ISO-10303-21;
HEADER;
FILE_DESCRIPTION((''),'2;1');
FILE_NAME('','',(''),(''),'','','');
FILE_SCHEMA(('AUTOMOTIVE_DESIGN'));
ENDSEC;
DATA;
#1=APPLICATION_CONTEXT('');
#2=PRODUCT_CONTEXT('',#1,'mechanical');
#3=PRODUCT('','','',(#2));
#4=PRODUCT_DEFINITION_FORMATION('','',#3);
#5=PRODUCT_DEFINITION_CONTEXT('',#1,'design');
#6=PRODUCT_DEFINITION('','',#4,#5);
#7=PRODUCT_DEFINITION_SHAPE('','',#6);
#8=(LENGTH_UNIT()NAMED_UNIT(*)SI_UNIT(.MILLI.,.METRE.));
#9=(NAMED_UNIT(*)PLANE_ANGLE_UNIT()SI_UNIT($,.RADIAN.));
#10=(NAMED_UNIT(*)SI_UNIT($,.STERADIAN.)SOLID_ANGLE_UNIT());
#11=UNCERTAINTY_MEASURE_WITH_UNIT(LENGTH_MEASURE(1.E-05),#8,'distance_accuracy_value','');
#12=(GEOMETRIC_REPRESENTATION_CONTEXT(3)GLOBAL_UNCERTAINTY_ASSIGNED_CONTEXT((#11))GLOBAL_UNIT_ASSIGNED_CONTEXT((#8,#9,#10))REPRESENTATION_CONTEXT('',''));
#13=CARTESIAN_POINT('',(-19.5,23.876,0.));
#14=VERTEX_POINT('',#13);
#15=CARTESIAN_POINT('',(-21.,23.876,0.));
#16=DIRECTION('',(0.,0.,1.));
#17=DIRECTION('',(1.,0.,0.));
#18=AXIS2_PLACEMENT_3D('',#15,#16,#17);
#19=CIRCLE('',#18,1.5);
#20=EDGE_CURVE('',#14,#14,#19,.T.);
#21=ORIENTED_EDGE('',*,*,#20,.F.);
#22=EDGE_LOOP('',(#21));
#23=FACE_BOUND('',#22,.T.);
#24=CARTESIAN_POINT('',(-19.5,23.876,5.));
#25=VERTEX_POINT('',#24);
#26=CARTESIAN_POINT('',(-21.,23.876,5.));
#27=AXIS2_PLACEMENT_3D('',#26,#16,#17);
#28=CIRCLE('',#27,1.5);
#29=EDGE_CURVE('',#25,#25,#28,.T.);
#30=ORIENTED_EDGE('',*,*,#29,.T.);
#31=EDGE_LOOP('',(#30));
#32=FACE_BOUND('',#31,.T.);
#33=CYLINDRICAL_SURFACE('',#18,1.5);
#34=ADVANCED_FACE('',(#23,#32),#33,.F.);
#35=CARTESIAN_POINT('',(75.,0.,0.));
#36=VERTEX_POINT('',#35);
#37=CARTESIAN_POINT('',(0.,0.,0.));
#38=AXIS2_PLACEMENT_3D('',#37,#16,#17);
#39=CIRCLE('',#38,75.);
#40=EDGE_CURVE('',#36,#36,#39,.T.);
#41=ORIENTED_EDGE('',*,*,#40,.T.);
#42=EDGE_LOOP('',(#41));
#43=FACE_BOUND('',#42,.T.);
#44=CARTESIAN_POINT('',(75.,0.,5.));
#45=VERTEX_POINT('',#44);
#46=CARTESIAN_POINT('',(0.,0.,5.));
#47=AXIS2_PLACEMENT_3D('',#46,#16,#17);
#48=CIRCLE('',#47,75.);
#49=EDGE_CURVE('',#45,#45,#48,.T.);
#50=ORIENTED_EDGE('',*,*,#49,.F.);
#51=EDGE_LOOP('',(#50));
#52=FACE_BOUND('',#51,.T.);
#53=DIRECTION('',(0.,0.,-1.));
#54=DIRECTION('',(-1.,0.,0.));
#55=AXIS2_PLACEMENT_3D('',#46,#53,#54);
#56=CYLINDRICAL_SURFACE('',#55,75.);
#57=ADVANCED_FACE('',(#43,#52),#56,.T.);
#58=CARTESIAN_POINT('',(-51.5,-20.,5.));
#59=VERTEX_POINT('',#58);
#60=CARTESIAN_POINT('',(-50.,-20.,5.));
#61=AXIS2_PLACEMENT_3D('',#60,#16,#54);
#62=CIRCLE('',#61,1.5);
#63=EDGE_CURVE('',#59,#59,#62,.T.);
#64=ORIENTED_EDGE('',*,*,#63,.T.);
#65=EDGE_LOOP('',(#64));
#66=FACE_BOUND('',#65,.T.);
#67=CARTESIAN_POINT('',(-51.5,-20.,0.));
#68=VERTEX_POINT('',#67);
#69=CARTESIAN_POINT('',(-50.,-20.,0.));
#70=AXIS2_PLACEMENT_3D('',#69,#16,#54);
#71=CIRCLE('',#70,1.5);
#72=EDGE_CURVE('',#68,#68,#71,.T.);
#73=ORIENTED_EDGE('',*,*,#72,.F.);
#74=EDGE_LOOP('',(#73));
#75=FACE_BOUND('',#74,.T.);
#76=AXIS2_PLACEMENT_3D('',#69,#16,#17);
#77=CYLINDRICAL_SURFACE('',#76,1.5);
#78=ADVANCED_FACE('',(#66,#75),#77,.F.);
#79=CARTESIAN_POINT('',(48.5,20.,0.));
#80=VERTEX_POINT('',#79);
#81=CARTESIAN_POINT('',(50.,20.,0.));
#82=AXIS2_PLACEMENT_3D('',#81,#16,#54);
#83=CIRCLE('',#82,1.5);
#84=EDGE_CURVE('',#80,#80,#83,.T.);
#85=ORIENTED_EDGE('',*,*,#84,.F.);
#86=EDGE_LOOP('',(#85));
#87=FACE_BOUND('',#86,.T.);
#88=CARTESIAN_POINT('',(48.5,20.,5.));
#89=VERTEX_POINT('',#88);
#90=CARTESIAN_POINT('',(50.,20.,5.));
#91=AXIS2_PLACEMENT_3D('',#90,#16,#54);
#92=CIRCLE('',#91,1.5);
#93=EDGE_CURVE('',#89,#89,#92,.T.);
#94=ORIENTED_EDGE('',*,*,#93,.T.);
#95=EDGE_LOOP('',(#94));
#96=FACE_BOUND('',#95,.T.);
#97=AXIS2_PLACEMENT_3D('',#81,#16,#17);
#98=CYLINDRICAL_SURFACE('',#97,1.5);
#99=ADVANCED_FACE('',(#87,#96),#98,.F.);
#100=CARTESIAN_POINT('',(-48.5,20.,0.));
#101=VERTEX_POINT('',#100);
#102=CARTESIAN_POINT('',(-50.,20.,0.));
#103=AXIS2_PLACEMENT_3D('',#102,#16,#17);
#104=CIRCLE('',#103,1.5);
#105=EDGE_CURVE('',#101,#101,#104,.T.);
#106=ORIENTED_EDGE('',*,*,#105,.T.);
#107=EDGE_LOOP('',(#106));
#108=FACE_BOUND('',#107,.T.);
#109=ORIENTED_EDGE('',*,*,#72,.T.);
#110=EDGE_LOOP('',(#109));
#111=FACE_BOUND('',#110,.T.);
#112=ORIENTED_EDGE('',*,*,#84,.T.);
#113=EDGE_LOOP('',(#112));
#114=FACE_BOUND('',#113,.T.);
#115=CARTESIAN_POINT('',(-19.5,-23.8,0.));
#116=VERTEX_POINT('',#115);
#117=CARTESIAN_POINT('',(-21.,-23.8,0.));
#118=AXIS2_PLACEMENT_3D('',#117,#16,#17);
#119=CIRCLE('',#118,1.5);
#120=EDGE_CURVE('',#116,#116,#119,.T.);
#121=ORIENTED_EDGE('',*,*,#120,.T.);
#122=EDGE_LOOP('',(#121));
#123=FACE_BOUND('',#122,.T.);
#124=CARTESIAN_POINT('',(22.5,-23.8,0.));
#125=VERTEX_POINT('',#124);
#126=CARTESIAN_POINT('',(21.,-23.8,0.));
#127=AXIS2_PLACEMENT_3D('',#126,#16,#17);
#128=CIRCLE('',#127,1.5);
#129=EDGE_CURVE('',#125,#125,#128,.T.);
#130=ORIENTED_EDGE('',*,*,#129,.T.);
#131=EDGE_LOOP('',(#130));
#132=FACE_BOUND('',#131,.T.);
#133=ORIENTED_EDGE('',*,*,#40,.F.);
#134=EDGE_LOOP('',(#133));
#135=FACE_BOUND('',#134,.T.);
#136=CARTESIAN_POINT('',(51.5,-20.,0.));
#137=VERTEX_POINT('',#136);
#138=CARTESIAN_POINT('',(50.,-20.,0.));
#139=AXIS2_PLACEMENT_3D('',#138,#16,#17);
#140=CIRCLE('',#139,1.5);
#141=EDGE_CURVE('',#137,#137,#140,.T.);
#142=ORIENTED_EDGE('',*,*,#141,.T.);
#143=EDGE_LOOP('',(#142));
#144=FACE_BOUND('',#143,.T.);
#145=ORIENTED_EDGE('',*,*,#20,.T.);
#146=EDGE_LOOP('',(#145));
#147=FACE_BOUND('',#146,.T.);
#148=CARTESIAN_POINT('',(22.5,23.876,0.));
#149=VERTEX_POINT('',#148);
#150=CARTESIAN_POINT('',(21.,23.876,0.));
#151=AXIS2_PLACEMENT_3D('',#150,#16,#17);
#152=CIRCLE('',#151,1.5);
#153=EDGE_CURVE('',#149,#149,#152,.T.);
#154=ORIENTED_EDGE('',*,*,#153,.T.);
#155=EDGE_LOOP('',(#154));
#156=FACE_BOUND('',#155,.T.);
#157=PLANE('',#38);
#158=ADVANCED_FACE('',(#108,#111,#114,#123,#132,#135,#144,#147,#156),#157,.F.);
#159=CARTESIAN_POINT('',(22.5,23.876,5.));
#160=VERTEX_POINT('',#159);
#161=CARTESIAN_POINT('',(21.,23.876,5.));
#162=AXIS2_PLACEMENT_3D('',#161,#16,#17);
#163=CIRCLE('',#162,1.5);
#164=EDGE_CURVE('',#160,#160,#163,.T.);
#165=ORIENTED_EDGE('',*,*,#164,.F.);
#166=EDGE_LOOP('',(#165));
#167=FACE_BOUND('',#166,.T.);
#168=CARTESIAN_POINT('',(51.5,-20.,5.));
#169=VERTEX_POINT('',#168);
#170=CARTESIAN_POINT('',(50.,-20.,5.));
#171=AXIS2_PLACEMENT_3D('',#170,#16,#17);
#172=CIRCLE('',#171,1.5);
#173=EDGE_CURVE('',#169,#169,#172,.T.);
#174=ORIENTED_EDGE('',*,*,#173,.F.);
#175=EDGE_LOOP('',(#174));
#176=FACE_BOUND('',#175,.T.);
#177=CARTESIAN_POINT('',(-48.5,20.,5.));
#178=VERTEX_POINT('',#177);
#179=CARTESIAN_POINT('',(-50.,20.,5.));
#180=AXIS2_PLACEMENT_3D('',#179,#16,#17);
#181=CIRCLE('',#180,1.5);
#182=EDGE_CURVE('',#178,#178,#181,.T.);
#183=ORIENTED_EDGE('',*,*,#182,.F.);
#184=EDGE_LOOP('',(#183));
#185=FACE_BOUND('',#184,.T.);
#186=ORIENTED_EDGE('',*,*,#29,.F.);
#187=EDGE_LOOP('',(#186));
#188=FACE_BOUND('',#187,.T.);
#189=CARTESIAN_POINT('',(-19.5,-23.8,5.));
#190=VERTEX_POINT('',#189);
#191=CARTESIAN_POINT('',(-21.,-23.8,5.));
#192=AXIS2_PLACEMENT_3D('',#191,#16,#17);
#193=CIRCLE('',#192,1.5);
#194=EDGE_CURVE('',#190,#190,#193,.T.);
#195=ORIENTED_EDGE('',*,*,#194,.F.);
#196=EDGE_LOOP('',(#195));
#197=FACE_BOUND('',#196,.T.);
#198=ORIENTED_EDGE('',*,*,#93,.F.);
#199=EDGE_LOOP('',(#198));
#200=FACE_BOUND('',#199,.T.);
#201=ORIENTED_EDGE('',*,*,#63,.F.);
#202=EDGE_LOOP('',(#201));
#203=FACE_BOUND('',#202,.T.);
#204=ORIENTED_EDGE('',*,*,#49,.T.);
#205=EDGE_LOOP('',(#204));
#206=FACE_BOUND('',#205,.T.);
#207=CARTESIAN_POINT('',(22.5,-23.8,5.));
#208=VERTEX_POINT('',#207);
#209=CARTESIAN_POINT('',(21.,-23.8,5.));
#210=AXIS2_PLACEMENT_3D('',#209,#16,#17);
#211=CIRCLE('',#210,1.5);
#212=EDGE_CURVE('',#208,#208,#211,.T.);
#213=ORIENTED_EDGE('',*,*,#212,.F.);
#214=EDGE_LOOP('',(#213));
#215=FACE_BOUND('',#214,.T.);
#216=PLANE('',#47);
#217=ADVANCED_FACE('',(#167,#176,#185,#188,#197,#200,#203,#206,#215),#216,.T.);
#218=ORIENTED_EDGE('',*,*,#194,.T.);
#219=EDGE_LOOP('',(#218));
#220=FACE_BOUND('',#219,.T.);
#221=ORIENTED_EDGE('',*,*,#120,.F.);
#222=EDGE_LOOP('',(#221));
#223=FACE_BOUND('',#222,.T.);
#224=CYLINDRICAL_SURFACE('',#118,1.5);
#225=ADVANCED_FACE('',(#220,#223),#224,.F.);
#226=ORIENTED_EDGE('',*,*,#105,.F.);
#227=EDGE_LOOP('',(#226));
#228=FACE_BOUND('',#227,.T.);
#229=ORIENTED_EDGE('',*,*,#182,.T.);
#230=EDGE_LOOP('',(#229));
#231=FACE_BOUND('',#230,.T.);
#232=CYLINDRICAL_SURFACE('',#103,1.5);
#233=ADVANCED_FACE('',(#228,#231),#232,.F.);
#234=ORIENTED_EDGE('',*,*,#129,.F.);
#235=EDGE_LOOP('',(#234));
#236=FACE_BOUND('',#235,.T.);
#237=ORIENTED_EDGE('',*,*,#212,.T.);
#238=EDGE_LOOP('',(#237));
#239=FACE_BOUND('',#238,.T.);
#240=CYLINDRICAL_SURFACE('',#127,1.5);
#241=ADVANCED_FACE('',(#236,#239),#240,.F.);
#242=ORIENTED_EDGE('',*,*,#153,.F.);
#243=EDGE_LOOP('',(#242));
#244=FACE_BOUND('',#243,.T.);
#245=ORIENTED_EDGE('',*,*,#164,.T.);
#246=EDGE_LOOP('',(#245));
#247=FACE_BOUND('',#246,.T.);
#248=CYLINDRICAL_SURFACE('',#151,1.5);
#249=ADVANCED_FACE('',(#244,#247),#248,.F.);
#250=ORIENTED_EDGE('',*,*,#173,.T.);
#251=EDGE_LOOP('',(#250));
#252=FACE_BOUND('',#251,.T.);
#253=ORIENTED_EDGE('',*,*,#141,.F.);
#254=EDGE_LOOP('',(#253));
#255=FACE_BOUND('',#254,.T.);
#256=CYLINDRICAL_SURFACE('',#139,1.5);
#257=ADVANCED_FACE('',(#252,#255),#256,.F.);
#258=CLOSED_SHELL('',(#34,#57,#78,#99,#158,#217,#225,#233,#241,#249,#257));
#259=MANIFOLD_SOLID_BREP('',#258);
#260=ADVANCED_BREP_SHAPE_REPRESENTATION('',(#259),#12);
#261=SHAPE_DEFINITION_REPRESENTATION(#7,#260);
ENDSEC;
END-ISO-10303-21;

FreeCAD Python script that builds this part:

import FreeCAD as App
import Part
import Sketcher

doc = App.newDocument("Part")
body = doc.addObject("PartDesign::Body", "Body")

# Sketch on XY plane
sketch1 = doc.addObject("Sketcher::SketchObject", "Sketch")
body.addObject(sketch1)
sketch1.AttachmentSupport = (doc.XY_Plane, [""])
sketch1.MapMode = "FlatFace"
sketch1.addGeometry(Part.Circle(App.Vector(0, 0, 0), App.Vector(0, 0, 1), 75), False)
sketch1.addConstraint(Sketcher.Constraint("Coincident", 0, 3, -1, 1))
sketch1.addConstraint(Sketcher.Constraint("Diameter", 0, 150.0))
pad1 = doc.addObject("PartDesign::Pad", "Pad")
body.addObject(pad1)
pad1.Profile = sketch1
pad1.Length = 5

# Sketch on XY plane
sketch2 = doc.addObject("Sketcher::SketchObject", "Sketch001")
body.addObject(sketch2)
sketch2.AttachmentSupport = (doc.XY_Plane, [""])
sketch2.MapMode = "FlatFace"
sketch2.AttachmentOffset = App.Placement(App.Vector(0, 0, 5), App.Rotation())
sketch2.addGeometry(Part.Circle(App.Vector(-50, 20, 0), App.Vector(0, 0, 1), 1.5), False)
sketch2.addGeometry(Part.Circle(App.Vector(-50, -20, 0), App.Vector(0, 0, 1), 1.5), False)
sketch2.addGeometry(Part.Circle(App.Vector(50, -20, 0), App.Vector(0, 0, 1), 1.5), False)
sketch2.addGeometry(Part.Circle(App.Vector(50, 20, 0), App.Vector(0, 0, 1), 1.5), False)
sketch2.addGeometry(Part.Circle(App.Vector(21, 23.9, 0), App.Vector(0, 0, 1), 1.5), False)
sketch2.addGeometry(Part.Circle(App.Vector(-21, 23.9, 0), App.Vector(0, 0, 1), 1.5), False)
sketch2.addGeometry(Part.Circle(App.Vector(-21, -23.8, 0), App.Vector(0, 0, 1), 1.5), False)
sketch2.addGeometry(Part.Circle(App.Vector(21, -23.8, 0), App.Vector(0, 0, 1), 1.5), False)
sketch2.addConstraint(Sketcher.Constraint("Equal", 0, 1))
sketch2.addConstraint(Sketcher.Constraint("Equal", 1, 2))
sketch2.addConstraint(Sketcher.Constraint("Equal", 2, 3))
sketch2.addConstraint(Sketcher.Constraint("Equal", 3, 4))
sketch2.addConstraint(Sketcher.Constraint("Equal", 4, 5))
sketch2.addConstraint(Sketcher.Constraint("Equal", 5, 6))
sketch2.addConstraint(Sketcher.Constraint("Equal", 6, 7))
sketch2.addConstraint(Sketcher.Constraint("Symmetric", 0, 3, 2, 3, -1, 1))
sketch2.addConstraint(Sketcher.Constraint("Symmetric", 1, 3, 3, 3, -1, 1))
sketch2.addConstraint(Sketcher.Constraint("Symmetric", 1, 3, 2, 3, -2))
sketch2.addConstraint(Sketcher.Constraint("Symmetric", 4, 3, 5, 3, -2))
sketch2.addConstraint(Sketcher.Constraint("Symmetric", 6, 3, 7, 3, -2))
sketch2.addConstraint(Sketcher.Constraint("Vertical", 5, 3, 6, 3))
sketch2.addConstraint(Sketcher.Constraint("Diameter", 0, 3.0))
sketch2.addConstraint(Sketcher.Constraint("DistanceX", 0, 3, -1, 1, 50.0))
sketch2.addConstraint(Sketcher.Constraint("DistanceY", -1, 1, 0, 3, 20.0))
sketch2.addConstraint(Sketcher.Constraint("DistanceX", -1, 1, 4, 3, 21.0))
sketch2.addConstraint(Sketcher.Constraint("DistanceY", 6, 3, -1, 1, 23.8))
sketch2.addConstraint(Sketcher.Constraint("DistanceY", -1, 1, 4, 3, 23.876))
pocket1 = doc.addObject("PartDesign::Pocket", "Pocket")
body.addObject(pocket1)
pocket1.Profile = sketch2
pocket1.Type = "ThroughAll"

doc.recompute()
